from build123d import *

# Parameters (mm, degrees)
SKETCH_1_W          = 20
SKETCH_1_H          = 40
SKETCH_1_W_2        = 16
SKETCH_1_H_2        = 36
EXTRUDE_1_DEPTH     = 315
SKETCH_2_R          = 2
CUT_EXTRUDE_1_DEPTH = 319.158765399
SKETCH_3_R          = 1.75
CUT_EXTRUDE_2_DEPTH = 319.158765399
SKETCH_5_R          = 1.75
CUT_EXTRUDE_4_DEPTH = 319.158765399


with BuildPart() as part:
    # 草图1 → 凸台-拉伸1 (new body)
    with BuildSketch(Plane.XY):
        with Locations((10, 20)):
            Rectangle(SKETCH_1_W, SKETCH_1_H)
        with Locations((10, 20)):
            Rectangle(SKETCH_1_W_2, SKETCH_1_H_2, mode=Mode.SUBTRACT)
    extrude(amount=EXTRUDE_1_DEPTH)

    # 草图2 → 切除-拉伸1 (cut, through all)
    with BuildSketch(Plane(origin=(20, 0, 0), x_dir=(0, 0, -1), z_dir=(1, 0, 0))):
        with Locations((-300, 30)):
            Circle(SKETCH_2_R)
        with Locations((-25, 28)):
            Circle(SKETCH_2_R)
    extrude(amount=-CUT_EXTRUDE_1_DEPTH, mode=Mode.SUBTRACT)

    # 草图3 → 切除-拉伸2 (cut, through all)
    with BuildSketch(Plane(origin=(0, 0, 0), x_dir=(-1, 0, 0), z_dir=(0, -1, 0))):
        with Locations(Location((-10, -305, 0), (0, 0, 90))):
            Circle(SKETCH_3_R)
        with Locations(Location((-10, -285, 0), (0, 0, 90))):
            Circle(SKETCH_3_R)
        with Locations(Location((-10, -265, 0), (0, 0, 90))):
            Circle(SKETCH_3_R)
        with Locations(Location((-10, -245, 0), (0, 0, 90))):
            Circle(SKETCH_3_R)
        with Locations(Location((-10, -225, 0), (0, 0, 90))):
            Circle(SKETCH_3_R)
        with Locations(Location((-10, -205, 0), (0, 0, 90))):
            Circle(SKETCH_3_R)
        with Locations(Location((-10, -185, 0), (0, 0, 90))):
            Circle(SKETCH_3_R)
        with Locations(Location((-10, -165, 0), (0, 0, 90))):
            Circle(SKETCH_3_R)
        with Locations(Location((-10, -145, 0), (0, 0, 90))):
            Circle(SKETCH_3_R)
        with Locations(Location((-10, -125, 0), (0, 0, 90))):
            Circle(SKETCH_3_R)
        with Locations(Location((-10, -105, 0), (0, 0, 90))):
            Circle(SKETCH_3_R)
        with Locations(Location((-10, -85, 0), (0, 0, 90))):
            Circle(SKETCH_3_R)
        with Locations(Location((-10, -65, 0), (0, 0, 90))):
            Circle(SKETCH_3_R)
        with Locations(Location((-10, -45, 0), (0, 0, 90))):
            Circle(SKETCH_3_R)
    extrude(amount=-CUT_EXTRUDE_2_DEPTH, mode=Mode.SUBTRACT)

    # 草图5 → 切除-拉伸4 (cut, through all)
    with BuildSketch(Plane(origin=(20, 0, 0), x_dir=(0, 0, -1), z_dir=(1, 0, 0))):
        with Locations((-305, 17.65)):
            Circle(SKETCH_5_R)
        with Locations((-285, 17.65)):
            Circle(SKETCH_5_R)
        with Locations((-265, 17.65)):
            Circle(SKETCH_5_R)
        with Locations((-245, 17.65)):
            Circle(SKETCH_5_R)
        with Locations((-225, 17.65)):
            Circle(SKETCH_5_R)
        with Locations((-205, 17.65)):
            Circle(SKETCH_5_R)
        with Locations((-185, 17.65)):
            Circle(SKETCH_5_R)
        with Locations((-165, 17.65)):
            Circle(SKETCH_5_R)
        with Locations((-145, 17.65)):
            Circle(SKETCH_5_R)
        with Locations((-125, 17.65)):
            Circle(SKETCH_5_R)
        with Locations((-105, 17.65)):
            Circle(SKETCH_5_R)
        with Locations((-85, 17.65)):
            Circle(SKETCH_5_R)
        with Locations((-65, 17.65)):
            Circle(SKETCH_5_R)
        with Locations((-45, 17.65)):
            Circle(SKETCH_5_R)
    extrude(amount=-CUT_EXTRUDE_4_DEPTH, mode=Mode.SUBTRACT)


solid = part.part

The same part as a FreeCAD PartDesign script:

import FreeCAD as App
import Part
import Sketcher


def add_polygon(sketch, points):
    """Adds a closed chain of lines whose ends are joined by coincident constraints."""
    first, n = sketch.GeometryCount, len(points)
    for a, b in zip(points, points[1:] + points[:1]):
        sketch.addGeometry(Part.LineSegment(App.Vector(*a, 0), App.Vector(*b, 0)), False)
    for i in range(n):
        sketch.addConstraint(Sketcher.Constraint("Coincident", first + i, 2, first + (i + 1) % n, 1))

doc = App.newDocument("Part")
body = doc.addObject("PartDesign::Body", "Body")

sketch1 = body.newObject("Sketcher::SketchObject", "Sketch")
sketch1.AttachmentSupport = (doc.getObject("XY_Plane"), [""])
sketch1.MapMode = "FlatFace"
add_polygon(sketch1, [(0, 40), (0, 0), (20, 0), (20, 40)])
add_polygon(sketch1, [(18, 2), (2, 2), (2, 38), (18, 38)])
sketch1.addConstraint([
    Sketcher.Constraint("Vertical", 0),
    Sketcher.Constraint("Horizontal", 1),
    Sketcher.Constraint("Vertical", 2),
    Sketcher.Constraint("Horizontal", 3),
    Sketcher.Constraint("Horizontal", 4),
    Sketcher.Constraint("Vertical", 5),
    Sketcher.Constraint("Horizontal", 6),
    Sketcher.Constraint("Vertical", 7),
    Sketcher.Constraint("Coincident", 0, 2, -1, 1),
    Sketcher.Constraint("DistanceX", 1, 1, 1, 2, 20.0),
    Sketcher.Constraint("DistanceX", 4, 2, 4, 1, 16.0),
    Sketcher.Constraint("DistanceY", 0, 2, 0, 1, 40.0),
    Sketcher.Constraint("DistanceY", 5, 1, 5, 2, 36.0),
    Sketcher.Constraint("DistanceX", -1, 1, 4, 2, 2.0),
    Sketcher.Constraint("DistanceY", -1, 1, 4, 2, 2.0),
])
pad1 = body.newObject("PartDesign::Pad", "Pad")
pad1.Profile = sketch1
pad1.Length = 315

sketch2 = body.newObject("Sketcher::SketchObject", "Sketch001")
sketch2.AttachmentSupport = (doc.getObject("YZ_Plane"), [""])
sketch2.MapMode = "FlatFace"
sketch2.AttachmentOffset = App.Placement(App.Vector(0, 0, 20), App.Rotation())
sketch2.addGeometry([
    Part.Circle(App.Vector(30, 300, 0), App.Vector(0, 0, 1), 2),
    Part.Circle(App.Vector(28, 25, 0), App.Vector(0, 0, 1), 2),
], False)
sketch2.addConstraint([
    Sketcher.Constraint("Equal", 0, 1),
    Sketcher.Constraint("Diameter", 0, 4.0),
    Sketcher.Constraint("DistanceX", -1, 1, 0, 3, 30.0),
    Sketcher.Constraint("DistanceY", -1, 1, 0, 3, 300.0),
    Sketcher.Constraint("DistanceX", -1, 1, 1, 3, 28.0),
    Sketcher.Constraint("DistanceY", -1, 1, 1, 3, 25.0),
])
pocket1 = body.newObject("PartDesign::Pocket", "Pocket")
pocket1.Profile = sketch2
pocket1.Type = "ThroughAll"

sketch3 = body.newObject("Sketcher::SketchObject", "Sketch002")
sketch3.AttachmentSupport = (doc.getObject("XZ_Plane"), [""])
sketch3.MapMode = "FlatFace"
sketch3.addGeometry([
    Part.Circle(App.Vector(10, 305, 0), App.Vector(0, 0, 1), 1.8),
    Part.Circle(App.Vector(10, 285, 0), App.Vector(0, 0, 1), 1.8),
    Part.Circle(App.Vector(10, 265, 0), App.Vector(0, 0, 1), 1.8),
    Part.Circle(App.Vector(10, 245, 0), App.Vector(0, 0, 1), 1.8),
    Part.Circle(App.Vector(10, 225, 0), App.Vector(0, 0, 1), 1.8),
    Part.Circle(App.Vector(10, 205, 0), App.Vector(0, 0, 1), 1.8),
    Part.Circle(App.Vector(10, 185, 0), App.Vector(0, 0, 1), 1.8),
    Part.Circle(App.Vector(10, 165, 0), App.Vector(0, 0, 1), 1.8),
    Part.Circle(App.Vector(10, 145, 0), App.Vector(0, 0, 1), 1.8),
    Part.Circle(App.Vector(10, 125, 0), App.Vector(0, 0, 1), 1.8),
    Part.Circle(App.Vector(10, 105, 0), App.Vector(0, 0, 1), 1.8),
    Part.Circle(App.Vector(10, 85, 0), App.Vector(0, 0, 1), 1.8),
    Part.Circle(App.Vector(10, 65, 0), App.Vector(0, 0, 1), 1.8),
    Part.Circle(App.Vector(10, 45, 0), App.Vector(0, 0, 1), 1.8),
], False)
sketch3.addConstraint([
    Sketcher.Constraint("Equal", 0, 1),
    Sketcher.Constraint("Equal", 1, 2),
    Sketcher.Constraint("Equal", 2, 3),
    Sketcher.Constraint("Equal", 3, 4),
    Sketcher.Constraint("Equal", 4, 5),
    Sketcher.Constraint("Equal", 5, 6),
    Sketcher.Constraint("Equal", 6, 7),
    Sketcher.Constraint("Equal", 7, 8),
    Sketcher.Constraint("Equal", 8, 9),
    Sketcher.Constraint("Equal", 9, 10),
    Sketcher.Constraint("Equal", 10, 11),
    Sketcher.Constraint("Equal", 11, 12),
    Sketcher.Constraint("Equal", 12, 13),
    Sketcher.Constraint("Vertical", 0, 3, 1, 3),
    Sketcher.Constraint("Vertical", 1, 3, 2, 3),
    Sketcher.Constraint("Vertical", 2, 3, 3, 3),
    Sketcher.Constraint("Vertical", 3, 3, 4, 3),
    Sketcher.Constraint("Vertical", 4, 3, 5, 3),
    Sketcher.Constraint("Vertical", 5, 3, 6, 3),
    Sketcher.Constraint("Vertical", 6, 3, 7, 3),
    Sketcher.Constraint("Vertical", 7, 3, 8, 3),
    Sketcher.Constraint("Vertical", 8, 3, 9, 3),
    Sketcher.Constraint("Vertical", 9, 3, 10, 3),
    Sketcher.Constraint("Vertical", 10, 3, 11, 3),
    Sketcher.Constraint("Vertical", 11, 3, 12, 3),
    Sketcher.Constraint("Vertical", 12, 3, 13, 3),
    Sketcher.Constraint("Diameter", 0, 3.5),
    Sketcher.Constraint("DistanceX", -1, 1, 0, 3, 10.0),
    Sketcher.Constraint("DistanceY", -1, 1, 0, 3, 305.0),
    Sketcher.Constraint("DistanceY", -1, 1, 1, 3, 285.0),
    Sketcher.Constraint("DistanceY", -1, 1, 2, 3, 265.0),
    Sketcher.Constraint("DistanceY", -1, 1, 3, 3, 245.0),
    Sketcher.Constraint("DistanceY", -1, 1, 4, 3, 225.0),
    Sketcher.Constraint("DistanceY", -1, 1, 5, 3, 205.0),
    Sketcher.Constraint("DistanceY", -1, 1, 6, 3, 185.0),
    Sketcher.Constraint("DistanceY", -1, 1, 7, 3, 165.0),
    Sketcher.Constraint("DistanceY", -1, 1, 8, 3, 145.0),
    Sketcher.Constraint("DistanceY", -1, 1, 9, 3, 125.0),
    Sketcher.Constraint("DistanceY", -1, 1, 10, 3, 105.0),
    Sketcher.Constraint("DistanceY", -1, 1, 11, 3, 85.0),
    Sketcher.Constraint("DistanceY", -1, 1, 12, 3, 65.0),
    Sketcher.Constraint("DistanceY", -1, 1, 13, 3, 45.0),
])
pocket2 = body.newObject("PartDesign::Pocket", "Pocket001")
pocket2.Profile = sketch3
pocket2.Type = "ThroughAll"

sketch4 = body.newObject("Sketcher::SketchObject", "Sketch003")
sketch4.AttachmentSupport = (doc.getObject("YZ_Plane"), [""])
sketch4.MapMode = "FlatFace"
sketch4.AttachmentOffset = App.Placement(App.Vector(0, 0, 20), App.Rotation())
sketch4.addGeometry([
    Part.Circle(App.Vector(17.6, 305, 0), App.Vector(0, 0, 1), 1.8),
    Part.Circle(App.Vector(17.6, 285, 0), App.Vector(0, 0, 1), 1.8),
    Part.Circle(App.Vector(17.6, 265, 0), App.Vector(0, 0, 1), 1.8),
    Part.Circle(App.Vector(17.6, 245, 0), App.Vector(0, 0, 1), 1.8),
    Part.Circle(App.Vector(17.6, 225, 0), App.Vector(0, 0, 1), 1.8),
    Part.Circle(App.Vector(17.6, 205, 0), App.Vector(0, 0, 1), 1.8),
    Part.Circle(App.Vector(17.6, 185, 0), App.Vector(0, 0, 1), 1.8),
    Part.Circle(App.Vector(17.6, 165, 0), App.Vector(0, 0, 1), 1.8),
    Part.Circle(App.Vector(17.6, 145, 0), App.Vector(0, 0, 1), 1.8),
    Part.Circle(App.Vector(17.6, 125, 0), App.Vector(0, 0, 1), 1.8),
    Part.Circle(App.Vector(17.6, 105, 0), App.Vector(0, 0, 1), 1.8),
    Part.Circle(App.Vector(17.6, 85, 0), App.Vector(0, 0, 1), 1.8),
    Part.Circle(App.Vector(17.6, 65, 0), App.Vector(0, 0, 1), 1.8),
    Part.Circle(App.Vector(17.6, 45, 0), App.Vector(0, 0, 1), 1.8),
], False)
sketch4.addConstraint([
    Sketcher.Constraint("Equal", 0, 1),
    Sketcher.Constraint("Equal", 1, 2),
    Sketcher.Constraint("Equal", 2, 3),
    Sketcher.Constraint("Equal", 3, 4),
    Sketcher.Constraint("Equal", 4, 5),
    Sketcher.Constraint("Equal", 5, 6),
    Sketcher.Constraint("Equal", 6, 7),
    Sketcher.Constraint("Equal", 7, 8),
    Sketcher.Constraint("Equal", 8, 9),
    Sketcher.Constraint("Equal", 9, 10),
    Sketcher.Constraint("Equal", 10, 11),
    Sketcher.Constraint("Equal", 11, 12),
    Sketcher.Constraint("Equal", 12, 13),
    Sketcher.Constraint("Vertical", 0, 3, 1, 3),
    Sketcher.Constraint("Vertical", 1, 3, 2, 3),
    Sketcher.Constraint("Vertical", 2, 3, 3, 3),
    Sketcher.Constraint("Vertical", 3, 3, 4, 3),
    Sketcher.Constraint("Vertical", 4, 3, 5, 3),
    Sketcher.Constraint("Vertical", 5, 3, 6, 3),
    Sketcher.Constraint("Vertical", 6, 3, 7, 3),
    Sketcher.Constraint("Vertical", 7, 3, 8, 3),
    Sketcher.Constraint("Vertical", 8, 3, 9, 3),
    Sketcher.Constraint("Vertical", 9, 3, 10, 3),
    Sketcher.Constraint("Vertical", 10, 3, 11, 3),
    Sketcher.Constraint("Vertical", 11, 3, 12, 3),
    Sketcher.Constraint("Vertical", 12, 3, 13, 3),
    Sketcher.Constraint("Diameter", 0, 3.5),
    Sketcher.Constraint("DistanceY", -1, 1, 0, 3, 305.0),
    Sketcher.Constraint("DistanceY", -1, 1, 1, 3, 285.0),
    Sketcher.Constraint("DistanceY", -1, 1, 2, 3, 265.0),
    Sketcher.Constraint("DistanceY", -1, 1, 3, 3, 245.0),
    Sketcher.Constraint("DistanceY", -1, 1, 4, 3, 225.0),
    Sketcher.Constraint("DistanceY", -1, 1, 5, 3, 205.0),
    Sketcher.Constraint("DistanceY", -1, 1, 6, 3, 185.0),
    Sketcher.Constraint("DistanceY", -1, 1, 7, 3, 165.0),
    Sketcher.Constraint("DistanceY", -1, 1, 8, 3, 145.0),
    Sketcher.Constraint("DistanceY", -1, 1, 9, 3, 125.0),
    Sketcher.Constraint("DistanceY", -1, 1, 10, 3, 105.0),
    Sketcher.Constraint("DistanceY", -1, 1, 11, 3, 85.0),
    Sketcher.Constraint("DistanceY", -1, 1, 12, 3, 65.0),
    Sketcher.Constraint("DistanceY", -1, 1, 13, 3, 45.0),
    Sketcher.Constraint("DistanceX", -1, 1, 0, 3, 17.65),
])
pocket3 = body.newObject("PartDesign::Pocket", "Pocket002")
pocket3.Profile = sketch4
pocket3.Type = "ThroughAll"

doc.recompute()
